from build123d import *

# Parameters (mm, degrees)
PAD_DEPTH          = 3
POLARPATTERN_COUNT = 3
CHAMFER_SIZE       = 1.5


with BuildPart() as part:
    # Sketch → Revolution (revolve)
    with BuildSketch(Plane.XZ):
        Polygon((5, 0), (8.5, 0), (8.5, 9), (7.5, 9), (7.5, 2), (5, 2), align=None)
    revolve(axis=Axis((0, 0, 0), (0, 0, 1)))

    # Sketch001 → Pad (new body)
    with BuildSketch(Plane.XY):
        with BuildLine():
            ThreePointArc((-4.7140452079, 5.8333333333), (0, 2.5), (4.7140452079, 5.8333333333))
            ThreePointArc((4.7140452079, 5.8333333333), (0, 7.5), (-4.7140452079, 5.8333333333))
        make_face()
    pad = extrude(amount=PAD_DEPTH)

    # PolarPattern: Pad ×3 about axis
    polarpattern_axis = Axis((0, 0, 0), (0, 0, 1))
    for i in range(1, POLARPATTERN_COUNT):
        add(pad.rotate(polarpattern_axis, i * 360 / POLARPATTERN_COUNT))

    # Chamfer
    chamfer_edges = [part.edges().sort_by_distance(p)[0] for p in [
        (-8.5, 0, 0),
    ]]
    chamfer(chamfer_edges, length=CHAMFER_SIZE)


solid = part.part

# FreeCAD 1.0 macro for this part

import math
import FreeCAD as App
import Part
import Sketcher
from FreeCAD import Vector


def edges_at(feature, points):
    """Names of the edges that pass closest to the given points."""
    edges = feature.Shape.Edges
    near = lambda p: min(range(len(edges)), key=lambda i: edges[i].distToShape(Part.Vertex(*p))[0])
    return sorted({f"Edge{near(p) + 1}" for p in points})


def add_polygon(sketch, points):
    """Adds a closed chain of lines whose ends are joined by coincident constraints."""
    first, n = sketch.GeometryCount, len(points)
    for a, b in zip(points, points[1:] + points[:1]):
        sketch.addGeometry(Part.LineSegment(App.Vector(*a, 0), App.Vector(*b, 0)), False)
    for i in range(n):
        sketch.addConstraint(Sketcher.Constraint("Coincident", first + i, 2, first + (i + 1) % n, 1))

doc = App.newDocument("Part")
body = doc.addObject("PartDesign::Body", "Body")

# Sketch on XZ plane
sketch1 = body.newObject("Sketcher::SketchObject", "Sketch")
sketch1.AttachmentSupport = (doc.getObject("XZ_Plane"), [""])
sketch1.MapMode = "FlatFace"
add_polygon(sketch1, [(5, 0), (8.5, 0), (8.5, 9), (7.5, 9), (7.5, 2), (5, 2)])  # lines 0-5
sketch1.addConstraint(Sketcher.Constraint("Horizontal", 0))
sketch1.addConstraint(Sketcher.Constraint("Vertical", 1))
sketch1.addConstraint(Sketcher.Constraint("Horizontal", 2))
sketch1.addConstraint(Sketcher.Constraint("Vertical", 3))
sketch1.addConstraint(Sketcher.Constraint("Horizontal", 4))
sketch1.addConstraint(Sketcher.Constraint("Vertical", 5))
sketch1.addConstraint(Sketcher.Constraint("PointOnObject", 0, 2, -1))
sketch1.addConstraint(Sketcher.Constraint("DistanceX", 2, 2, 2, 1, 1.0))
sketch1.addConstraint(Sketcher.Constraint("DistanceY", 1, 1, 1, 2, 9.0))
sketch1.addConstraint(Sketcher.Constraint("DistanceY", 3, 2, 3, 1, 7.0))
sketch1.addConstraint(Sketcher.Constraint("DistanceX", 0, 1, 0, 2, 3.5))
sketch1.addConstraint(Sketcher.Constraint("DistanceX", -1, 1, 4, 2, 5.0))
revolution = body.newObject("PartDesign::Revolution", "Revolution")
revolution.Profile = sketch1
revolution.ReferenceAxis = (sketch1, ["V_Axis"])
revolution.Angle = 360

# Sketch on XY plane
sketch2 = body.newObject("Sketcher::SketchObject", "Sketch001")
sketch2.AttachmentSupport = (doc.getObject("XY_Plane"), [""])
sketch2.MapMode = "FlatFace"
sketch2.addGeometry(Part.ArcOfCircle(Part.Circle(Vector(0, 8, 0), Vector(0, 0, 1), 5), math.radians(-161), math.radians(-19)), False)
sketch2.addGeometry(Part.ArcOfCircle(Part.Circle(Vector(0, 0, 0), Vector(0, 0, 1), 8), math.radians(51), math.radians(129)), False)
sketch2.addConstraint(Sketcher.Constraint("Coincident", 0, 1, 1, 2))
sketch2.addConstraint(Sketcher.Constraint("Coincident", 1, 1, 0, 2))
sketch2.addConstraint(Sketcher.Constraint("Coincident", 1, 3, -1, 1))
sketch2.addConstraint(Sketcher.Constraint("PointOnObject", 0, 3, -2))
sketch2.addConstraint(Sketcher.Constraint("Radius", 0, 5.0))
sketch2.addConstraint(Sketcher.Constraint("Radius", 1, 7.5))
sketch2.addConstraint(Sketcher.Constraint("DistanceY", -1, 1, 0, 3, 7.5))
pad1 = body.newObject("PartDesign::Pad", "Pad")
pad1.Profile = sketch2
pad1.Length = 3
doc.recompute()

polarpattern = body.newObject("PartDesign::PolarPattern", "PolarPattern")
polarpattern.Originals = [pad1]
polarpattern.Axis = (doc.getObject("Z_Axis"), [""])
polarpattern.Angle = 360
polarpattern.Occurrences = 3
body.Tip = polarpattern
doc.recompute()

chamfer = body.newObject("PartDesign::Chamfer", "Chamfer")
chamfer.Base = (polarpattern, edges_at(polarpattern, [(-8.5, 0, 0)]))
chamfer.Size = 1.5

doc.recompute()
